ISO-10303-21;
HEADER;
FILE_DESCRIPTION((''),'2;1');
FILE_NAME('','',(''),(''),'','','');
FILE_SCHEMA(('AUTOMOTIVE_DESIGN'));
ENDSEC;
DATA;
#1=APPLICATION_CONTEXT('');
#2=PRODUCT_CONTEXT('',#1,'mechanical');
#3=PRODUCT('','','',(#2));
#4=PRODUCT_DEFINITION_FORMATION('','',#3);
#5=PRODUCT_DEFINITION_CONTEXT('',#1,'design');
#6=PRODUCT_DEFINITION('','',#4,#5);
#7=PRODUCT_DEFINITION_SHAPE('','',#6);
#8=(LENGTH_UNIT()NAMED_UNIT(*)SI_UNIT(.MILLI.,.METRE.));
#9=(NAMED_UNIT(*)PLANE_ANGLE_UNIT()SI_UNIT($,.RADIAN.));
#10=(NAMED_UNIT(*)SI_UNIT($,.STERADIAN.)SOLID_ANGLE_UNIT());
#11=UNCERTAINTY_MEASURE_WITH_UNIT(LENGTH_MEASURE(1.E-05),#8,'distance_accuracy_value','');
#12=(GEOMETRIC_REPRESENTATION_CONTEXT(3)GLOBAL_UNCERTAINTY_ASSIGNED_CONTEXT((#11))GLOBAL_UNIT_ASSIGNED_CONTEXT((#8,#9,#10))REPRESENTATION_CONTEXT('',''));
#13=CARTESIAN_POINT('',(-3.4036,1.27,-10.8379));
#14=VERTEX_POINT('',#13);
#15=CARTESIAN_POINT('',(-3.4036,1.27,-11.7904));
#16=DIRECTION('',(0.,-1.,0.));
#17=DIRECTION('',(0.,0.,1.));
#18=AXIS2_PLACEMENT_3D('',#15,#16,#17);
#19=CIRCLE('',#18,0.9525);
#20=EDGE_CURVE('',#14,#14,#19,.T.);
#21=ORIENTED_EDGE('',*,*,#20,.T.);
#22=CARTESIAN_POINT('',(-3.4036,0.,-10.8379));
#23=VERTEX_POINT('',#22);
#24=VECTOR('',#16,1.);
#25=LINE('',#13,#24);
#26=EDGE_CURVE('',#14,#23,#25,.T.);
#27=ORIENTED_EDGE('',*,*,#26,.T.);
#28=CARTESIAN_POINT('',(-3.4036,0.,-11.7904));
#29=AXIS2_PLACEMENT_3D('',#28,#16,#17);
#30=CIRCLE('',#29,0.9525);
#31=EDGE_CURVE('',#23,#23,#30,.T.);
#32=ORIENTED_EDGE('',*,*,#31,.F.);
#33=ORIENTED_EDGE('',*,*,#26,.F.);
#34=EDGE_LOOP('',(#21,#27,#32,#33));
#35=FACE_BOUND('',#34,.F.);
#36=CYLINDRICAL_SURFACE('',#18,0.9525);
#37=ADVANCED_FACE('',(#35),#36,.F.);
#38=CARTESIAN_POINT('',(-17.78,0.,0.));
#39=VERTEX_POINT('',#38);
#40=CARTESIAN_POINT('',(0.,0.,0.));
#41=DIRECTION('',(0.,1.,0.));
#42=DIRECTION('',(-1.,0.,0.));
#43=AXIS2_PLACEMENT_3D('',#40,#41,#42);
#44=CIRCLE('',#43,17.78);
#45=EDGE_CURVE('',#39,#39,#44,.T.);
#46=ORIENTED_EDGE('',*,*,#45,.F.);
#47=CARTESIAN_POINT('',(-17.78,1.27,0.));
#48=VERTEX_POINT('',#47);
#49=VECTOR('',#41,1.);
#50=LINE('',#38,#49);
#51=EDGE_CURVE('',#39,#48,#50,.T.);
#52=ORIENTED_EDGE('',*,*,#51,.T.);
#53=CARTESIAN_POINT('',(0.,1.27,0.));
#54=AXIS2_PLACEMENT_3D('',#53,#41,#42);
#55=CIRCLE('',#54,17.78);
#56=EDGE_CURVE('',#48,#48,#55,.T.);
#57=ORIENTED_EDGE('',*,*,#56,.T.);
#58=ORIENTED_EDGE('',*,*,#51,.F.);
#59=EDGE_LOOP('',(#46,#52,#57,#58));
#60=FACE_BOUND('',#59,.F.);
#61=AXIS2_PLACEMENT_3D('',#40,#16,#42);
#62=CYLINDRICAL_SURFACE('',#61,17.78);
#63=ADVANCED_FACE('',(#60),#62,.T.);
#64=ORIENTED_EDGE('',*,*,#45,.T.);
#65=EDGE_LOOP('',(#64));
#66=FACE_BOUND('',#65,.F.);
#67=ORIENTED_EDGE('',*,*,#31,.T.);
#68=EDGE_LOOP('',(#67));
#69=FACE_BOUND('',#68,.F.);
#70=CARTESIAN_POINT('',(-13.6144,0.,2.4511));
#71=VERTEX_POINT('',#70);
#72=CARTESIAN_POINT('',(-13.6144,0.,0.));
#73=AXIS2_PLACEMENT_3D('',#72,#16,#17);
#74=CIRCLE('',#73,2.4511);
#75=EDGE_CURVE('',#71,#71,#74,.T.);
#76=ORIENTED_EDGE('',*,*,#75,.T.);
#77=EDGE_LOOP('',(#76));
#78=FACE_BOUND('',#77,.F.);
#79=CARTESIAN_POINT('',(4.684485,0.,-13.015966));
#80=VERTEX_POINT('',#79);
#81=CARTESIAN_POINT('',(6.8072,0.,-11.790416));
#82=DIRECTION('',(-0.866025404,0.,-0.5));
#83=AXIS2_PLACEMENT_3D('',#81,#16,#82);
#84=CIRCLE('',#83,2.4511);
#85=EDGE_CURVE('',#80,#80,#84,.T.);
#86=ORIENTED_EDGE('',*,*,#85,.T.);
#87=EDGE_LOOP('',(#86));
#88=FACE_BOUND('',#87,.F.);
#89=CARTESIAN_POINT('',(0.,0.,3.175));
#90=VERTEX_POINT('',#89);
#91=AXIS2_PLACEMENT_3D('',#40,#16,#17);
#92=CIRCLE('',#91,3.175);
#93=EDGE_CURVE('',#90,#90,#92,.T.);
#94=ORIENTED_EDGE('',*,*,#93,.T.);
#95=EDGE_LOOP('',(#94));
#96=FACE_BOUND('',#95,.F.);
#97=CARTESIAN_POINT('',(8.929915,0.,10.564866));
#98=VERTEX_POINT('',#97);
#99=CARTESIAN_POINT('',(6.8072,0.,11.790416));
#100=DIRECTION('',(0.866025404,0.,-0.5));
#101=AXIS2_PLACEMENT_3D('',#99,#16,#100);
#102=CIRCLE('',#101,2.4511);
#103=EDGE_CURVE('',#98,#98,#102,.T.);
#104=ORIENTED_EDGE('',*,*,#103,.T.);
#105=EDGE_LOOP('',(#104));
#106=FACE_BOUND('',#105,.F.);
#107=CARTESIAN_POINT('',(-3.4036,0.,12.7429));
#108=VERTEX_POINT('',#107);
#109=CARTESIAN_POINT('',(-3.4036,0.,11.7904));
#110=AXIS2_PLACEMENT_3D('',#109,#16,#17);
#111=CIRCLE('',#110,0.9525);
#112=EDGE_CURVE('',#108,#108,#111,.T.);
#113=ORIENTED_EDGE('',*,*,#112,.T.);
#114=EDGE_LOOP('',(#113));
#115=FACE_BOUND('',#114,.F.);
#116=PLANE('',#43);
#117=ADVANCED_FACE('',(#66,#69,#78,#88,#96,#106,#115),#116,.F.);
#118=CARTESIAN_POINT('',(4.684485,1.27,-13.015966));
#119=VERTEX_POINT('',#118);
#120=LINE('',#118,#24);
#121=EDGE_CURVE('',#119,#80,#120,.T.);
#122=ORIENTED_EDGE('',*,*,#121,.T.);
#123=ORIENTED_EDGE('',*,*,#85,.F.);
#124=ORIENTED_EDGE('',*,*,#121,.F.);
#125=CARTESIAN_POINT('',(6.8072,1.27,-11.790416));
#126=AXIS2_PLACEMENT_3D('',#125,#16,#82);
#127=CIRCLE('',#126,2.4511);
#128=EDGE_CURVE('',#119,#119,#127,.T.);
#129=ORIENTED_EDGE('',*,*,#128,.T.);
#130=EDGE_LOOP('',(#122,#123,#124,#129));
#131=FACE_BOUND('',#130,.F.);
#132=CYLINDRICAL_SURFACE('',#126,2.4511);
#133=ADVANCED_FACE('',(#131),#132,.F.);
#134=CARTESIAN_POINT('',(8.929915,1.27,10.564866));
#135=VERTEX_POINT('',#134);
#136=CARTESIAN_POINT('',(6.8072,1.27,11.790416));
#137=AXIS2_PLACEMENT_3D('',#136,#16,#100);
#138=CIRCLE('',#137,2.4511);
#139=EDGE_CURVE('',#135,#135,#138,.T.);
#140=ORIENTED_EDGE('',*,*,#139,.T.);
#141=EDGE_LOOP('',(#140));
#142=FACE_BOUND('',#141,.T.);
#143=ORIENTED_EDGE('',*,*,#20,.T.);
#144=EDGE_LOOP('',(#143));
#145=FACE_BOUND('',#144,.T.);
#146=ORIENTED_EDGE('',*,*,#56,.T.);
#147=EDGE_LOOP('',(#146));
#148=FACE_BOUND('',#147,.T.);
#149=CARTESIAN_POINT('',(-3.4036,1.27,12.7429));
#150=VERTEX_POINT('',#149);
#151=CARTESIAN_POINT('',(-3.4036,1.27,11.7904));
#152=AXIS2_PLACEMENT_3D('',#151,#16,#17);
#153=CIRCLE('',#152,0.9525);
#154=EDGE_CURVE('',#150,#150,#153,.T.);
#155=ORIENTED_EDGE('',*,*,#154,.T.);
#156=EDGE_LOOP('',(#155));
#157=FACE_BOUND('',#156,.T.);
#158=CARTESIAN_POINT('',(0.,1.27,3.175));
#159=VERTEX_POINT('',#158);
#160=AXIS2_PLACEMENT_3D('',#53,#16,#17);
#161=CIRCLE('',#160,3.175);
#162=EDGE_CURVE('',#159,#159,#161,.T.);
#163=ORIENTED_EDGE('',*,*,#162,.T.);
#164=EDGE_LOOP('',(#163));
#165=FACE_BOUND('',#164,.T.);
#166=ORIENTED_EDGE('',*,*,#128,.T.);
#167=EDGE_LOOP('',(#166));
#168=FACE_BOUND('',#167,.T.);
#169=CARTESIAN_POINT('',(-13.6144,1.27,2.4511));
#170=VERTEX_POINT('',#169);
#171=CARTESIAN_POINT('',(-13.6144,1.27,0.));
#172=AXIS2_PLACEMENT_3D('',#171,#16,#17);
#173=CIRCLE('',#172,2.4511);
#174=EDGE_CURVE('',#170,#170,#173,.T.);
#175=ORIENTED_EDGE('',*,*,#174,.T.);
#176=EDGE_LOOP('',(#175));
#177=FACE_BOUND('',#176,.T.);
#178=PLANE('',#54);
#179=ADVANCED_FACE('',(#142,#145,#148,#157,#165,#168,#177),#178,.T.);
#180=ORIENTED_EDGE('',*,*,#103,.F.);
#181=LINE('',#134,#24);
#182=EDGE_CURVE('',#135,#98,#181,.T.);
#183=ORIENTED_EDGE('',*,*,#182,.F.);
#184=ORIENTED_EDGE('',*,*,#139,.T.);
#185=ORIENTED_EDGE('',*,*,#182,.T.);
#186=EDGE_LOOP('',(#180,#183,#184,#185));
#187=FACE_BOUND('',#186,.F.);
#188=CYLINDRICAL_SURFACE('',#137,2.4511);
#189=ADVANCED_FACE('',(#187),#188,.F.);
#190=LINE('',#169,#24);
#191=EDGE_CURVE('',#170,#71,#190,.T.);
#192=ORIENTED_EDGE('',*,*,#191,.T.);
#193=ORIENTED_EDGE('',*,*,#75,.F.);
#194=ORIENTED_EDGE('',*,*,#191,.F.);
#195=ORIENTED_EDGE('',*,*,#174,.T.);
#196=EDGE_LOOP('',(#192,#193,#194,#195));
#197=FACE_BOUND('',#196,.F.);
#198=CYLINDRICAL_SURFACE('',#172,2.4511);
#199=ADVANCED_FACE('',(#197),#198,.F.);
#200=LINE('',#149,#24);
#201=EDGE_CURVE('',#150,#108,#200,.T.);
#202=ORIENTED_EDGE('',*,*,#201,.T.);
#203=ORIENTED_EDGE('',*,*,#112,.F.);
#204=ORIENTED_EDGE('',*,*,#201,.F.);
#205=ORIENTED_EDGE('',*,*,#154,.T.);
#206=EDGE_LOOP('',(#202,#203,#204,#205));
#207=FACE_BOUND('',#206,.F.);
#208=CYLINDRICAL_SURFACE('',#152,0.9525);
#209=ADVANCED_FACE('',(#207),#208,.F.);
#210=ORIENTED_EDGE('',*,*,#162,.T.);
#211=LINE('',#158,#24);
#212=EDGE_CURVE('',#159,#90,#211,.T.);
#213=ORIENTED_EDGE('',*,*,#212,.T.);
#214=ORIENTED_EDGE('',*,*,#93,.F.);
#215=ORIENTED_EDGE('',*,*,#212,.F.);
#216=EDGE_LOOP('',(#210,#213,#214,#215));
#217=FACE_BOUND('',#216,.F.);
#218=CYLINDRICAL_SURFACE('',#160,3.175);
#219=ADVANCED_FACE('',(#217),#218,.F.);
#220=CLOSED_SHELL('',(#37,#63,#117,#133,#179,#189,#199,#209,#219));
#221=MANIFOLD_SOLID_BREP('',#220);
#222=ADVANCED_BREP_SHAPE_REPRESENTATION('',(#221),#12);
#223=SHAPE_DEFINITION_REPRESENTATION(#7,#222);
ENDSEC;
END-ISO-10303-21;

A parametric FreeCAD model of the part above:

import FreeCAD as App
import Part
import Sketcher
from FreeCAD import Vector
Q = App.Units.Quantity

doc = App.newDocument("Part")
body = doc.addObject("PartDesign::Body", "Body")

sketch1 = doc.addObject("Sketcher::SketchObject", "Sketch")
body.addObject(sketch1)
sketch1.AttachmentSupport = (doc.XZ_Plane, [""])
sketch1.MapMode = "FlatFace"
sketch1.addGeometry(Part.Circle(Vector(0, 0, 0), Vector(0, 0, 1), 18), False)
sketch1.addConstraint([
    Sketcher.Constraint("Coincident", 0, 3, -1, 1),
    Sketcher.Constraint("Diameter", 0, Q("1.4 in")),
])
pad1 = doc.addObject("PartDesign::Pad", "Pad")
body.addObject(pad1)
pad1.Profile = sketch1
pad1.Length = Q("0.05 in")
pad1.Reversed = True

sketch2 = doc.addObject("Sketcher::SketchObject", "Sketch001")
body.addObject(sketch2)
sketch2.AttachmentSupport = (doc.XZ_Plane, [""])
sketch2.MapMode = "FlatFace"
sketch2.AttachmentOffset = App.Placement(Vector(0, 0, -0.05 * 25.4), App.Rotation())
sketch2.addGeometry(Part.Circle(Vector(0, 0, 0), Vector(0, 0, 1), 3.2), False)
sketch2.addConstraint([
    Sketcher.Constraint("Coincident", 0, 3, -1, 1),
    Sketcher.Constraint("Diameter", 0, Q("0.25 in")),
])
doc.recompute()
hole = doc.addObject("PartDesign::Hole", "Hole")
body.addObject(hole)
hole.Profile = sketch2
hole.ThreadType = "None"
hole.Diameter = Q("0.25 in")
hole.DepthType = "ThroughAll"
hole.Reversed = True

sketch3 = doc.addObject("Sketcher::SketchObject", "Sketch002")
body.addObject(sketch3)
sketch3.AttachmentSupport = (doc.XZ_Plane, [""])
sketch3.MapMode = "FlatFace"
sketch3.AttachmentOffset = App.Placement(Vector(0, 0, -0.05 * 25.4), App.Rotation())
sketch3.addGeometry(Part.Circle(Vector(-13.6, 0, 0), Vector(0, 0, 1), 2.5), False)
sketch3.addConstraint([
    Sketcher.Constraint("PointOnObject", 0, 3, -1),
    Sketcher.Constraint("Diameter", 0, Q("0.193 in")),
    Sketcher.Constraint("DistanceX", 0, 3, -1, 1, Q("0.536 in")),
])
doc.recompute()
hole2 = doc.addObject("PartDesign::Hole", "Hole001")
body.addObject(hole2)
hole2.Profile = sketch3
hole2.ThreadType = "None"
hole2.Diameter = Q("0.193 in")
hole2.DepthType = "ThroughAll"
hole2.Reversed = True
doc.recompute()

polarpattern = doc.addObject("PartDesign::PolarPattern", "PolarPattern")
body.addObject(polarpattern)
polarpattern.Originals = [hole2]
polarpattern.Axis = (doc.Y_Axis, [""])
polarpattern.Angle = 360
polarpattern.Occurrences = 3
body.Tip = polarpattern

sketch4 = doc.addObject("Sketcher::SketchObject", "Sketch003")
body.addObject(sketch4)
sketch4.AttachmentSupport = (doc.XZ_Plane, [""])
sketch4.MapMode = "FlatFace"
sketch4.AttachmentOffset = App.Placement(Vector(0, 0, -0.05 * 25.4), App.Rotation())
sketch4.addGeometry([
    Part.Circle(Vector(-3.4, 11.8, 0), Vector(0, 0, 1), 1),
    Part.Circle(Vector(-3.4, -11.8, 0), Vector(0, 0, 1), 1),
], False)
sketch4.addConstraint([
    Sketcher.Constraint("Equal", 0, 1),
    Sketcher.Constraint("Symmetric", 0, 3, 1, 3, -1),
    Sketcher.Constraint("Diameter", 0, Q("0.075 in")),
    Sketcher.Constraint("DistanceX", 0, 3, -1, 1, Q("0.134 in")),
    Sketcher.Constraint("DistanceY", -1, 1, 0, 3, Q("0.4642 in")),
])
doc.recompute()
hole3 = doc.addObject("PartDesign::Hole", "Hole002")
body.addObject(hole3)
hole3.Profile = sketch4
hole3.ThreadType = "None"
hole3.Diameter = Q("0.075 in")
hole3.DepthType = "Dimension"
hole3.Depth = Q("0.25 in")
hole3.DrillPoint = "Angled"
hole3.DrillPointAngle = 118
hole3.Reversed = True

doc.recompute()
